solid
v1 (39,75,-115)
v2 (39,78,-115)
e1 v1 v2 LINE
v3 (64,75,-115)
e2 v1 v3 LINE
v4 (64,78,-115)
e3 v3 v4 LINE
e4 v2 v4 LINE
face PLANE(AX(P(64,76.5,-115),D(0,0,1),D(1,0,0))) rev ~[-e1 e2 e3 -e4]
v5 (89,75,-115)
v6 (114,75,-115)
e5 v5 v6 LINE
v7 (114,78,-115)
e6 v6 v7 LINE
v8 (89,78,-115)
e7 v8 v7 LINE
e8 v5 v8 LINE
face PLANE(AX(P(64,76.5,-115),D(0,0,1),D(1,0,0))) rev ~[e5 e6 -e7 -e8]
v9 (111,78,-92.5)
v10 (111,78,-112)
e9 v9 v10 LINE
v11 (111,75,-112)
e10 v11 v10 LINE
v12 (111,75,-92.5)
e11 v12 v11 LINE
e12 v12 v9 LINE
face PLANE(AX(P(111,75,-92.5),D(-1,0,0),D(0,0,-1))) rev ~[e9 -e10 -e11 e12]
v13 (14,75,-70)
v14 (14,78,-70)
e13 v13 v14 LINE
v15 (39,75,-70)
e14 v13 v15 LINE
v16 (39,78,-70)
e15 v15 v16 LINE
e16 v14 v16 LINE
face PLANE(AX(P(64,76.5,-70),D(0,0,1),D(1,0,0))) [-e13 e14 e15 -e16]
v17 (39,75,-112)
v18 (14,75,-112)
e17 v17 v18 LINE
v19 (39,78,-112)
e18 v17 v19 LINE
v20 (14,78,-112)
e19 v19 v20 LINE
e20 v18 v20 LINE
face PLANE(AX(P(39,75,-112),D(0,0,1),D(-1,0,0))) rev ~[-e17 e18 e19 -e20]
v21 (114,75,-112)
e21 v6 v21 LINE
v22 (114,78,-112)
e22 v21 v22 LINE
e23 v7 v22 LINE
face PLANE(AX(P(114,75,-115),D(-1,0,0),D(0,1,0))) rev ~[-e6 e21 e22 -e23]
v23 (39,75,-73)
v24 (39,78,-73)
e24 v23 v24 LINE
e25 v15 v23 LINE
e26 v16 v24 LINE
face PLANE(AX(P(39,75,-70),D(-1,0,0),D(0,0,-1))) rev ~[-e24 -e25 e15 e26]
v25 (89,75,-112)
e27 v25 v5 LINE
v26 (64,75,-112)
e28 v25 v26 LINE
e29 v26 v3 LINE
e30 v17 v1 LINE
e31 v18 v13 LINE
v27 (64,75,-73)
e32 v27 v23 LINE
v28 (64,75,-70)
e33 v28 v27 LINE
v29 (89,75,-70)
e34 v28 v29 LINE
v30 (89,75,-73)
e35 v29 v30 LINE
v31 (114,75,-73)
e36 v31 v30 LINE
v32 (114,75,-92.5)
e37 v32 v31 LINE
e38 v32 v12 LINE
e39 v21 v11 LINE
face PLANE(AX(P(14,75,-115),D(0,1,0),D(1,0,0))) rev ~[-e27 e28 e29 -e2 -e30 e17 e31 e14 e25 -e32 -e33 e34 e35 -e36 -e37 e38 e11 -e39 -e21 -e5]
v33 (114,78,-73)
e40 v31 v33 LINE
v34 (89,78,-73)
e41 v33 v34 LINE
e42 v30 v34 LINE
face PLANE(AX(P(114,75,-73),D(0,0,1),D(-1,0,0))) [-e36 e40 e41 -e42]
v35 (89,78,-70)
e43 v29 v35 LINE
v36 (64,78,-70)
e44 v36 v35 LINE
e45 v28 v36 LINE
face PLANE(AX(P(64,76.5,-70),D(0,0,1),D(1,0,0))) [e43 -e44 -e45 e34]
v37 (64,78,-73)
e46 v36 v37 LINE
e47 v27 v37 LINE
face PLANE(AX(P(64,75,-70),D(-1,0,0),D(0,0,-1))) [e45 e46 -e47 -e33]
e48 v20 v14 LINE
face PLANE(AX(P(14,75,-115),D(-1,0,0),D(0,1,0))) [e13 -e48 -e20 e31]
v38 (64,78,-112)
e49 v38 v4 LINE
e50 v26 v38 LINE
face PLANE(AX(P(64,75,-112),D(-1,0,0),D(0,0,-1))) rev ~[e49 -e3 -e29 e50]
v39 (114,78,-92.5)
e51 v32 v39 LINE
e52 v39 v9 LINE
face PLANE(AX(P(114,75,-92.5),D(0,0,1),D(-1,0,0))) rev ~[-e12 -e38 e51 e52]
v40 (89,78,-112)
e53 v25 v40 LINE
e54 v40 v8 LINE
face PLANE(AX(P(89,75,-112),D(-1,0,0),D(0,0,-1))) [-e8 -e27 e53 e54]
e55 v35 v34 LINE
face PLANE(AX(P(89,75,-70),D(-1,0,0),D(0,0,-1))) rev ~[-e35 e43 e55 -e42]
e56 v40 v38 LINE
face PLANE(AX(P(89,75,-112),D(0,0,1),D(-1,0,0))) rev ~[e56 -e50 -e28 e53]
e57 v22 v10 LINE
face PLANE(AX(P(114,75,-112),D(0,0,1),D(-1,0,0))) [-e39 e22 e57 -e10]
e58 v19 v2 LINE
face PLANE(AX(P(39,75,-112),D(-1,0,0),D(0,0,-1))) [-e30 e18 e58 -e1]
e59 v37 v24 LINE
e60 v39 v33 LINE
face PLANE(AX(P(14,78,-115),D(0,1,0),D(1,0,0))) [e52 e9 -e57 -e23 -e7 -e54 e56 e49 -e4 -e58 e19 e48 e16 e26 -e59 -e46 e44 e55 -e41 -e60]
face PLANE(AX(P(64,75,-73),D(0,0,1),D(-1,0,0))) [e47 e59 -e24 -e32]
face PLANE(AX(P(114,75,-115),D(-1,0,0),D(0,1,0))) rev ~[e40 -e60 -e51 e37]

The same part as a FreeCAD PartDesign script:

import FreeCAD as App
import Part
import Sketcher

V = App.Vector


def add_polygon(sketch, points):
    """Adds a closed chain of lines whose ends are joined by coincident constraints."""
    first, n = sketch.GeometryCount, len(points)
    for a, b in zip(points, points[1:] + points[:1]):
        sketch.addGeometry(Part.LineSegment(App.Vector(*a, 0), App.Vector(*b, 0)), False)
    for i in range(n):
        sketch.addConstraint(Sketcher.Constraint("Coincident", first + i, 2, first + (i + 1) % n, 1))

doc = App.newDocument("Part")
body = doc.addObject("PartDesign::Body", "Body")

# Sketch on XY plane
sketch1 = doc.addObject("Sketcher::SketchObject", "Sketch")
body.addObject(sketch1)
sketch1.AttachmentSupport = (doc.XY_Plane, [""])
sketch1.MapMode = "FlatFace"
add_polygon(sketch1, [(0, 3), (0, 0), (25, 0), (25, 3)])  # lines 0-3
sketch1.addConstraint([
    Sketcher.Constraint("Vertical", 0),
    Sketcher.Constraint("Horizontal", 1),
    Sketcher.Constraint("Vertical", 2),
    Sketcher.Constraint("Horizontal", 3),
    Sketcher.Constraint("Coincident", 0, 2, -1, 1),
    Sketcher.Constraint("DistanceX", 1, 1, 1, 2, 25.0),
    Sketcher.Constraint("DistanceY", 0, 2, 0, 1, 3.0),
])
pad1 = doc.addObject("PartDesign::Pad", "Pad")
body.addObject(pad1)
pad1.Profile = sketch1
pad1.Length = 3
pad1.Reversed = True
body2 = doc.addObject("PartDesign::Body", "Body001")
doc.recompute()

body.Placement = App.Placement(V(0, 0, 0), App.Rotation(V(1, 0, 0), 270))
boolean = doc.addObject("PartDesign::Boolean", "Boolean")
body2.addObject(boolean)
boolean.Type = "Fuse"
boolean.addObjects([body])
body3 = doc.addObject("PartDesign::Body", "Body002")
doc.recompute()

body2.Placement = App.Placement(V(39, -77, -70), App.Rotation(V(0, 0, 1), 180))
boolean2 = doc.addObject("PartDesign::Boolean", "Boolean001")
body3.addObject(boolean2)
boolean2.Type = "Fuse"
boolean2.addObjects([body2])
body4 = doc.addObject("PartDesign::Body", "Body003")
doc.recompute()

body3.Placement = App.Placement(V(0, 0, -42), App.Rotation(V(0, 0, 1), 0))
boolean3 = doc.addObject("PartDesign::Boolean", "Boolean002")
body4.addObject(boolean3)
boolean3.Type = "Fuse"
boolean3.addObjects([body3])
body5 = doc.addObject("PartDesign::Body", "Body004")

# Sketch on XY plane
sketch2 = doc.addObject("Sketcher::SketchObject", "Sketch001")
body5.addObject(sketch2)
sketch2.AttachmentSupport = (doc.getObject("XY_Plane004"), [""])
sketch2.MapMode = "FlatFace"
add_polygon(sketch2, [(0, 3), (0, 0), (25, 0), (25, 3)])  # lines 0-3
sketch2.addConstraint([
    Sketcher.Constraint("Vertical", 0),
    Sketcher.Constraint("Horizontal", 1),
    Sketcher.Constraint("Vertical", 2),
    Sketcher.Constraint("Horizontal", 3),
    Sketcher.Constraint("Coincident", 0, 2, -1, 1),
    Sketcher.Constraint("DistanceX", 1, 1, 1, 2, 25.0),
    Sketcher.Constraint("DistanceY", 0, 2, 0, 1, 3.0),
])
pad2 = doc.addObject("PartDesign::Pad", "Pad001")
body5.addObject(pad2)
pad2.Profile = sketch2
pad2.Length = 3
pad2.Reversed = True
body6 = doc.addObject("PartDesign::Body", "Body005")
doc.recompute()

body5.Placement = App.Placement(V(0, 0, 0), App.Rotation(V(1, 0, 0), 270))
boolean4 = doc.addObject("PartDesign::Boolean", "Boolean003")
body6.addObject(boolean4)
boolean4.Type = "Fuse"
boolean4.addObjects([body5])
body7 = doc.addObject("PartDesign::Body", "Body006")
doc.recompute()

body6.Placement = App.Placement(V(89, -77, -70), App.Rotation(V(0, 0, 1), 180))
boolean5 = doc.addObject("PartDesign::Boolean", "Boolean004")
body7.addObject(boolean5)
boolean5.Type = "Fuse"
boolean5.addObjects([body6])
body8 = doc.addObject("PartDesign::Body", "Body007")
doc.recompute()

body7.Placement = App.Placement(V(0, 0, -42), App.Rotation(V(0, 0, 1), 0))
boolean6 = doc.addObject("PartDesign::Boolean", "Boolean005")
body8.addObject(boolean6)
boolean6.Type = "Fuse"
boolean6.addObjects([body7])
body9 = doc.addObject("PartDesign::Body", "Body008")

# Sketch on XY plane
sketch3 = doc.addObject("Sketcher::SketchObject", "Sketch002")
body9.addObject(sketch3)
sketch3.AttachmentSupport = (doc.getObject("XY_Plane008"), [""])
sketch3.MapMode = "FlatFace"
add_polygon(sketch3, [(0, 19.5), (0, 0), (3, 0), (3, 19.5)])  # lines 0-3
sketch3.addConstraint([
    Sketcher.Constraint("Vertical", 0),
    Sketcher.Constraint("Horizontal", 1),
    Sketcher.Constraint("Vertical", 2),
    Sketcher.Constraint("Horizontal", 3),
    Sketcher.Constraint("Coincident", 0, 2, -1, 1),
    Sketcher.Constraint("DistanceX", 1, 1, 1, 2, 3.0),
    Sketcher.Constraint("DistanceY", 0, 2, 0, 1, 19.5),
])
pad3 = doc.addObject("PartDesign::Pad", "Pad002")
body9.addObject(pad3)
pad3.Profile = sketch3
pad3.Length = 3
pad3.Reversed = True
body10 = doc.addObject("PartDesign::Body", "Body009")
doc.recompute()

body9.Placement = App.Placement(V(0, 0, 0), App.Rotation(V(1, 0, 0), 270))
boolean7 = doc.addObject("PartDesign::Boolean", "Boolean006")
body10.addObject(boolean7)
boolean7.Type = "Fuse"
boolean7.addObjects([body9])
body11 = doc.addObject("PartDesign::Body", "Body010")
doc.recompute()

body10.Placement = App.Placement(V(114, -77, -92.5), App.Rotation(V(0, 0, 1), 180))
boolean8 = doc.addObject("PartDesign::Boolean", "Boolean007")
body11.addObject(boolean8)
boolean8.Type = "Fuse"
boolean8.addObjects([body10])
body12 = doc.addObject("PartDesign::Body", "Body011")

# Sketch on XY plane
sketch4 = doc.addObject("Sketcher::SketchObject", "Sketch003")
body12.addObject(sketch4)
sketch4.AttachmentSupport = (doc.getObject("XY_Plane011"), [""])
sketch4.MapMode = "FlatFace"
add_polygon(sketch4, [(0, 3), (0, 0), (25, 0), (25, 3)])  # lines 0-3
sketch4.addConstraint([
    Sketcher.Constraint("Vertical", 0),
    Sketcher.Constraint("Horizontal", 1),
    Sketcher.Constraint("Vertical", 2),
    Sketcher.Constraint("Horizontal", 3),
    Sketcher.Constraint("Coincident", 0, 2, -1, 1),
    Sketcher.Constraint("DistanceX", 1, 1, 1, 2, 25.0),
    Sketcher.Constraint("DistanceY", 0, 2, 0, 1, 3.0),
])
pad4 = doc.addObject("PartDesign::Pad", "Pad003")
body12.addObject(pad4)
pad4.Profile = sketch4
pad4.Length = 3
pad4.Reversed = True
body13 = doc.addObject("PartDesign::Body", "Body012")
doc.recompute()

body12.Placement = App.Placement(V(0, 0, 0), App.Rotation(V(1, 0, 0), 270))
boolean9 = doc.addObject("PartDesign::Boolean", "Boolean008")
body13.addObject(boolean9)
boolean9.Type = "Fuse"
boolean9.addObjects([body12])
body14 = doc.addObject("PartDesign::Body", "Body013")
doc.recompute()

body13.Placement = App.Placement(V(114, -77, -70), App.Rotation(V(0, 0, 1), 180))
boolean10 = doc.addObject("PartDesign::Boolean", "Boolean009")
body14.addObject(boolean10)
boolean10.Type = "Fuse"
boolean10.addObjects([body13])
body15 = doc.addObject("PartDesign::Body", "Body014")

# Sketch on XY plane
sketch5 = doc.addObject("Sketcher::SketchObject", "Sketch004")
body15.addObject(sketch5)
sketch5.AttachmentSupport = (doc.getObject("XY_Plane014"), [""])
sketch5.MapMode = "FlatFace"
add_polygon(sketch5, [(0, 3), (0, 0), (25, 0), (25, 3)])  # lines 0-3
sketch5.addConstraint([
    Sketcher.Constraint("Vertical", 0),
    Sketcher.Constraint("Horizontal", 1),
    Sketcher.Constraint("Vertical", 2),
    Sketcher.Constraint("Horizontal", 3),
    Sketcher.Constraint("Coincident", 0, 2, -1, 1),
    Sketcher.Constraint("DistanceX", 1, 1, 1, 2, 25.0),
    Sketcher.Constraint("DistanceY", 0, 2, 0, 1, 3.0),
])
pad5 = doc.addObject("PartDesign::Pad", "Pad004")
body15.addObject(pad5)
pad5.Profile = sketch5
pad5.Length = 3
pad5.Reversed = True
body16 = doc.addObject("PartDesign::Body", "Body015")
doc.recompute()

body15.Placement = App.Placement(V(0, 0, 0), App.Rotation(V(1, 0, 0), 270))
boolean11 = doc.addObject("PartDesign::Boolean", "Boolean010")
body16.addObject(boolean11)
boolean11.Type = "Fuse"
boolean11.addObjects([body15])
body17 = doc.addObject("PartDesign::Body", "Body016")
body17.AllowCompound = True
doc.recompute()

body16.Placement = App.Placement(V(64, -77, -70), App.Rotation(V(0, 0, 1), 180))
boolean12 = doc.addObject("PartDesign::Boolean", "Boolean011")
body17.addObject(boolean12)
boolean12.Type = "Fuse"
boolean12.addObjects([body16])
doc.recompute()

boolean13 = doc.addObject("PartDesign::Boolean", "Boolean012")
body17.addObject(boolean13)
boolean13.Type = "Fuse"
boolean13.addObjects([body4])
doc.recompute()

boolean14 = doc.addObject("PartDesign::Boolean", "Boolean013")
body17.addObject(boolean14)
boolean14.Type = "Fuse"
boolean14.addObjects([body8])
doc.recompute()

boolean15 = doc.addObject("PartDesign::Boolean", "Boolean014")
body17.addObject(boolean15)
boolean15.Type = "Fuse"
boolean15.addObjects([body11])
doc.recompute()

boolean16 = doc.addObject("PartDesign::Boolean", "Boolean015")
body17.addObject(boolean16)
boolean16.Type = "Fuse"
boolean16.addObjects([body14])
body18 = doc.addObject("PartDesign::Body", "Body017")
body18.AllowCompound = True
doc.recompute()

body17.Placement = App.Placement(V(0, 152, 0), App.Rotation(V(0, 0, 1), 0))
boolean17 = doc.addObject("PartDesign::Boolean", "Boolean016")
body18.addObject(boolean17)
boolean17.Type = "Fuse"
boolean17.addObjects([body17])
body19 = doc.addObject("PartDesign::Body", "Body018")

# Sketch on XY plane
sketch6 = doc.addObject("Sketcher::SketchObject", "Sketch005")
body19.addObject(sketch6)
sketch6.AttachmentSupport = (doc.getObject("XY_Plane018"), [""])
sketch6.MapMode = "FlatFace"
sketch6.AttachmentOffset = App.Placement(V(0, 0, -115), App.Rotation())
add_polygon(sketch6, [(14, 78), (14, 75), (114, 75), (114, 78)])  # lines 0-3
sketch6.addConstraint([
    Sketcher.Constraint("Vertical", 0),
    Sketcher.Constraint("Horizontal", 1),
    Sketcher.Constraint("Vertical", 2),
    Sketcher.Constraint("Horizontal", 3),
    Sketcher.Constraint("DistanceX", 1, 1, 1, 2, 100.0),
    Sketcher.Constraint("DistanceY", 0, 2, 0, 1, 3.0),
    Sketcher.Constraint("DistanceX", -1, 1, 0, 2, 14.0),
    Sketcher.Constraint("DistanceY", -1, 1, 0, 2, 75.0),
])
pad6 = doc.addObject("PartDesign::Pad", "Pad005")
body19.addObject(pad6)
pad6.Profile = sketch6
pad6.Length = 45
doc.recompute()

boolean18 = doc.addObject("PartDesign::Boolean", "Boolean017")
body19.addObject(boolean18)
boolean18.Type = "Cut"
boolean18.addObjects([body18])

doc.recompute()
